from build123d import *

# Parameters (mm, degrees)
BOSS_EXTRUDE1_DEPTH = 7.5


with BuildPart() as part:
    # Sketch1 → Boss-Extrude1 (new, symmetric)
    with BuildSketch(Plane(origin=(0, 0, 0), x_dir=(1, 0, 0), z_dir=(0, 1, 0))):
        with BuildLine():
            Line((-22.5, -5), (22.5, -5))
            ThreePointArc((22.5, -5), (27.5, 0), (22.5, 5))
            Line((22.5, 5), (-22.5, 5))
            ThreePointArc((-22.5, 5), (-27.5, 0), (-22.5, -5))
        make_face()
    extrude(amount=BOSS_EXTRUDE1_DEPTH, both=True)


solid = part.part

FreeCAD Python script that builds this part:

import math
import FreeCAD as App
import Part
import Sketcher

V = App.Vector

doc = App.newDocument("Part")
params = doc.addObject("Spreadsheet::Sheet", "Params")
for row, (alias, value) in enumerate([
    ("sketch1_radius", "5 mm"),
    ("sketch1_width", "45 mm"),
    ("pad1_length", "15 mm"),
], start=1):
    params.set(f"A{row}", alias)
    params.set(f"B{row}", "=" + value)
    params.setAlias(f"B{row}", alias)

body = doc.addObject("PartDesign::Body", "Body")

# Sketch on XZ plane
sketch1 = body.newObject("Sketcher::SketchObject", "Sketch")
sketch1.AttachmentSupport = (doc.getObject("XZ_Plane"), [""])
sketch1.MapMode = "FlatFace"
sketch1.addGeometry(Part.LineSegment(V(-22, 5, 0), V(22, 5, 0)), False)
sketch1.addGeometry(Part.ArcOfCircle(Part.Circle(V(22, 0, 0), V(0, 0, 1), 5), math.radians(-90), math.radians(90)), False)
sketch1.addGeometry(Part.LineSegment(V(22, -5, 0), V(-22, -5, 0)), False)
sketch1.addGeometry(Part.ArcOfCircle(Part.Circle(V(-22, 0, 0), V(0, 0, 1), 5), math.radians(90), math.radians(270)), False)
sketch1.addConstraint(Sketcher.Constraint("Tangent", 0, 2, 1, 2))
sketch1.addConstraint(Sketcher.Constraint("Tangent", 1, 1, 2, 1))
sketch1.addConstraint(Sketcher.Constraint("Tangent", 2, 2, 3, 2))
sketch1.addConstraint(Sketcher.Constraint("Tangent", 3, 1, 0, 1))
sketch1.addConstraint(Sketcher.Constraint("Horizontal", 0))
sketch1.addConstraint(Sketcher.Constraint("Horizontal", 2))
sketch1.addConstraint(Sketcher.Constraint("Symmetric", 1, 3, 3, 3, -1, 1))
sketch1.addConstraint(Sketcher.Constraint("Radius", 1, 5.0))
sketch1.addConstraint(Sketcher.Constraint("DistanceX", 0, 1, 0, 2, 45.0))
sketch1.setExpression("Constraints[7]", "Params.sketch1_radius")
sketch1.setExpression("Constraints[8]", "Params.sketch1_width")
pad1 = body.newObject("PartDesign::Pad", "Pad")
pad1.Profile = sketch1
pad1.setExpression("Length", "Params.pad1_length")
pad1.Midplane = True

doc.recompute()
